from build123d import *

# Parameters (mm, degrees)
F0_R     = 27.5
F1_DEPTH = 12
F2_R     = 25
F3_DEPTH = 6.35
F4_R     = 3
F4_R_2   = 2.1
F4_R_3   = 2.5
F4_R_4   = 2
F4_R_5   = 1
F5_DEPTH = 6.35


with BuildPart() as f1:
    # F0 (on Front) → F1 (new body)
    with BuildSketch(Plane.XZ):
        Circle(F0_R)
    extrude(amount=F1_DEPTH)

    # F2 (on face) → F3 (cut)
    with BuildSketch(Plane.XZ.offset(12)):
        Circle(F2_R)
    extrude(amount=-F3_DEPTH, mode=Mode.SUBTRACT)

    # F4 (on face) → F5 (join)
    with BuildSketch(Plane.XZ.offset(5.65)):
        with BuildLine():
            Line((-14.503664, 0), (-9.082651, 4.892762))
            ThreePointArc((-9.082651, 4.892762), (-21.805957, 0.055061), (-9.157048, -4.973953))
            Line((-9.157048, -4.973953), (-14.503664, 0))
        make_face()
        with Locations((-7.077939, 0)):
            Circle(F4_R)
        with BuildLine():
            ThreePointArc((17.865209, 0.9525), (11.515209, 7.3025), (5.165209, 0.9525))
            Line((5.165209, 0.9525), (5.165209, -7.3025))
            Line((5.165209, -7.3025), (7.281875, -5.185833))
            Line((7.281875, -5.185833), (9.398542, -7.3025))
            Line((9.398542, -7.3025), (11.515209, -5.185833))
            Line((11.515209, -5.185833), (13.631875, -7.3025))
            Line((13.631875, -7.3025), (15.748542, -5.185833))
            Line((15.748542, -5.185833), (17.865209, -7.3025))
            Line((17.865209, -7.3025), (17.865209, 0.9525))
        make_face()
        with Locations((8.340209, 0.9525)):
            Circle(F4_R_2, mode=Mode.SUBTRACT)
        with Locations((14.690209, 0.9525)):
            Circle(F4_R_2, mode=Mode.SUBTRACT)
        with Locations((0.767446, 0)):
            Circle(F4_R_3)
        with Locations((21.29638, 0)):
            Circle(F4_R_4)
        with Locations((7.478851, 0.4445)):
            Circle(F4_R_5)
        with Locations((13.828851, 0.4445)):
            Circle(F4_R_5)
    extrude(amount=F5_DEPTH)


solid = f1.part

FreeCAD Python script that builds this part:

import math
import FreeCAD as App
import Part
import Sketcher

V = App.Vector

doc = App.newDocument("Part")
body = doc.addObject("PartDesign::Body", "Body")

# Sketch on XZ plane
sketch1 = body.newObject("Sketcher::SketchObject", "Sketch")
sketch1.AttachmentSupport = (doc.getObject("XZ_Plane"), [""])
sketch1.MapMode = "FlatFace"
sketch1.addGeometry(Part.Circle(V(0, 0, 0), V(0, 0, 1), 27.5), False)
sketch1.addConstraint([
    Sketcher.Constraint("Coincident", 0, 3, -1, 1),
    Sketcher.Constraint("Diameter", 0, 55.0),
])
pad1 = body.newObject("PartDesign::Pad", "Pad")
pad1.Profile = sketch1
pad1.Length = 12

# Sketch on XZ plane
sketch2 = body.newObject("Sketcher::SketchObject", "Sketch001")
sketch2.AttachmentSupport = (doc.getObject("XZ_Plane"), [""])
sketch2.MapMode = "FlatFace"
sketch2.AttachmentOffset = App.Placement(V(0, 0, 12), App.Rotation())
sketch2.addGeometry(Part.Circle(V(0, 0, 0), V(0, 0, 1), 25), False)
sketch2.addConstraint([
    Sketcher.Constraint("Coincident", 0, 3, -1, 1),
    Sketcher.Constraint("Diameter", 0, 50.0),
])
pocket1 = body.newObject("PartDesign::Pocket", "Pocket")
pocket1.Profile = sketch2
pocket1.Length = 6.35

# Sketch on XZ plane
sketch3 = body.newObject("Sketcher::SketchObject", "Sketch002")
sketch3.AttachmentSupport = (doc.getObject("XZ_Plane"), [""])
sketch3.MapMode = "FlatFace"
sketch3.AttachmentOffset = App.Placement(V(0, 0, 5.65), App.Rotation())
sketch3.addGeometry([
    Part.LineSegment(V(-14.503664, 0, 0), V(-9.082651, 4.892762, 0)),  # 0
    Part.ArcOfCircle(Part.Circle(V(-14.503664, 0, 0), V(0, 0, 1), 7.3025), math.radians(42.067987), math.radians(317.067986)),  # 1
    Part.LineSegment(V(-9.157048, -4.973953, 0), V(-14.503664, 0, 0)),  # 2
    Part.Circle(V(-7.077939, 0, 0), V(0, 0, 1), 3),  # 3
    Part.ArcOfCircle(Part.Circle(V(11.515209, 0.9525, 0), V(0, 0, 1), 6.35), math.radians(0), math.radians(180)),  # 4
    Part.LineSegment(V(5.165209, 0.9525, 0), V(5.165209, -7.3025, 0)),  # 5
    Part.LineSegment(V(5.165209, -7.3025, 0), V(7.281875, -5.185833, 0)),  # 6
    Part.LineSegment(V(7.281875, -5.185833, 0), V(9.398542, -7.3025, 0)),  # 7
    Part.LineSegment(V(9.398542, -7.3025, 0), V(11.515209, -5.185833, 0)),  # 8
    Part.LineSegment(V(11.515209, -5.185833, 0), V(13.631875, -7.3025, 0)),  # 9
    Part.LineSegment(V(13.631875, -7.3025, 0), V(15.748542, -5.185833, 0)),  # 10
    Part.LineSegment(V(15.748542, -5.185833, 0), V(17.865209, -7.3025, 0)),  # 11
    Part.LineSegment(V(17.865209, -7.3025, 0), V(17.865209, 0.9525, 0)),  # 12
    Part.Circle(V(8.340209, 0.9525, 0), V(0, 0, 1), 2.1),  # 13
    Part.Circle(V(14.690209, 0.9525, 0), V(0, 0, 1), 2.1),  # 14
    Part.Circle(V(0.767446, 0, 0), V(0, 0, 1), 2.5),  # 15
    Part.Circle(V(21.29638, 0, 0), V(0, 0, 1), 2),  # 16
    Part.Circle(V(7.478851, 0.4445, 0), V(0, 0, 1), 1),  # 17
    Part.Circle(V(13.828851, 0.4445, 0), V(0, 0, 1), 1),  # 18
], False)
sketch3.addConstraint([
    Sketcher.Constraint("Coincident", 0, 2, 1, 1),
    Sketcher.Constraint("Coincident", 1, 2, 2, 1),
    Sketcher.Constraint("Coincident", 2, 2, 0, 1),
    Sketcher.Constraint("Tangent", 4, 2, 5, 1),
    Sketcher.Constraint("Coincident", 5, 2, 6, 1),
    Sketcher.Constraint("Coincident", 6, 2, 7, 1),
    Sketcher.Constraint("Coincident", 7, 2, 8, 1),
    Sketcher.Constraint("Coincident", 8, 2, 9, 1),
    Sketcher.Constraint("Coincident", 9, 2, 10, 1),
    Sketcher.Constraint("Coincident", 10, 2, 11, 1),
    Sketcher.Constraint("Coincident", 11, 2, 12, 1),
    Sketcher.Constraint("Tangent", 12, 2, 4, 1),
    Sketcher.Constraint("Vertical", 5),
    Sketcher.Constraint("Vertical", 12),
    Sketcher.Constraint("Coincident", 2, 2, 1, 3),
    Sketcher.Constraint("Equal", 13, 14),
    Sketcher.Constraint("Equal", 17, 18),
    Sketcher.Constraint("PointOnObject", 1, 3, -1),
    Sketcher.Constraint("PointOnObject", 3, 3, -1),
    Sketcher.Constraint("PointOnObject", 15, 3, -1),
    Sketcher.Constraint("PointOnObject", 16, 3, -1),
    Sketcher.Constraint("Perpendicular", 6, 7),
    Sketcher.Constraint("Perpendicular", 7, 8),
    Sketcher.Constraint("Perpendicular", 8, 9),
    Sketcher.Constraint("Perpendicular", 9, 10),
    Sketcher.Constraint("Perpendicular", 10, 11),
    Sketcher.Constraint("Horizontal", 4, 3, 13, 3),
    Sketcher.Constraint("Horizontal", 13, 3, 14, 3),
    Sketcher.Constraint("Horizontal", 17, 3, 18, 3),
    Sketcher.Constraint("Horizontal", 5, 2, 7, 2),
    Sketcher.Constraint("Horizontal", 6, 2, 8, 2),
    Sketcher.Constraint("Horizontal", 7, 2, 9, 2),
    Sketcher.Constraint("Horizontal", 8, 2, 10, 2),
    Sketcher.Constraint("Horizontal", 9, 2, 11, 2),
    Sketcher.Constraint("Vertical", 4, 3, 8, 2),
    Sketcher.Constraint("Diameter", 3, 6.0),
    Sketcher.Constraint("Diameter", 15, 5.0),
    Sketcher.Constraint("Diameter", 16, 4.0),
    Sketcher.Constraint("Diameter", 17, 2.0),
    Sketcher.Constraint("Diameter", 13, 4.2),
    Sketcher.Constraint("Radius", 4, 6.35),
    Sketcher.Constraint("Radius", 1, 7.3025),
    Sketcher.Constraint("DistanceY", 5, 2, 5, 1, 8.255),
    Sketcher.Constraint("DistanceX", 13, 3, 14, 3, 6.35),
    Sketcher.Constraint("DistanceX", 17, 3, 18, 3, 6.35),
    Sketcher.Constraint("DistanceX", 13, 3, 4, 3, 3.175),
    Sketcher.Constraint("DistanceY", 17, 3, 13, 3, 0.508),
    Sketcher.Constraint("DistanceY", -1, 1, 4, 3, 0.9525),
    Sketcher.Constraint("DistanceX", 1, 2, 17, 3, 16.635899),
    Sketcher.Constraint("DistanceX", 3, 3, -1, 1, 7.077939),
    Sketcher.Constraint("DistanceX", -1, 1, 4, 3, 11.515209),
    Sketcher.Constraint("DistanceX", -1, 1, 16, 3, 21.29638),
    Sketcher.Constraint("DistanceX", -1, 1, 17, 3, 7.478851),
    Sketcher.Constraint("DistanceX", 0, 2, -1, 1, 9.082651),
    Sketcher.Constraint("DistanceX", 1, 3, 15, 3, 15.27111),
    Sketcher.Constraint("DistanceX", 1, 3, -1, 1, 14.503664),
])
pad2 = body.newObject("PartDesign::Pad", "Pad001")
pad2.Profile = sketch3
pad2.Length = 6.35

doc.recompute()
